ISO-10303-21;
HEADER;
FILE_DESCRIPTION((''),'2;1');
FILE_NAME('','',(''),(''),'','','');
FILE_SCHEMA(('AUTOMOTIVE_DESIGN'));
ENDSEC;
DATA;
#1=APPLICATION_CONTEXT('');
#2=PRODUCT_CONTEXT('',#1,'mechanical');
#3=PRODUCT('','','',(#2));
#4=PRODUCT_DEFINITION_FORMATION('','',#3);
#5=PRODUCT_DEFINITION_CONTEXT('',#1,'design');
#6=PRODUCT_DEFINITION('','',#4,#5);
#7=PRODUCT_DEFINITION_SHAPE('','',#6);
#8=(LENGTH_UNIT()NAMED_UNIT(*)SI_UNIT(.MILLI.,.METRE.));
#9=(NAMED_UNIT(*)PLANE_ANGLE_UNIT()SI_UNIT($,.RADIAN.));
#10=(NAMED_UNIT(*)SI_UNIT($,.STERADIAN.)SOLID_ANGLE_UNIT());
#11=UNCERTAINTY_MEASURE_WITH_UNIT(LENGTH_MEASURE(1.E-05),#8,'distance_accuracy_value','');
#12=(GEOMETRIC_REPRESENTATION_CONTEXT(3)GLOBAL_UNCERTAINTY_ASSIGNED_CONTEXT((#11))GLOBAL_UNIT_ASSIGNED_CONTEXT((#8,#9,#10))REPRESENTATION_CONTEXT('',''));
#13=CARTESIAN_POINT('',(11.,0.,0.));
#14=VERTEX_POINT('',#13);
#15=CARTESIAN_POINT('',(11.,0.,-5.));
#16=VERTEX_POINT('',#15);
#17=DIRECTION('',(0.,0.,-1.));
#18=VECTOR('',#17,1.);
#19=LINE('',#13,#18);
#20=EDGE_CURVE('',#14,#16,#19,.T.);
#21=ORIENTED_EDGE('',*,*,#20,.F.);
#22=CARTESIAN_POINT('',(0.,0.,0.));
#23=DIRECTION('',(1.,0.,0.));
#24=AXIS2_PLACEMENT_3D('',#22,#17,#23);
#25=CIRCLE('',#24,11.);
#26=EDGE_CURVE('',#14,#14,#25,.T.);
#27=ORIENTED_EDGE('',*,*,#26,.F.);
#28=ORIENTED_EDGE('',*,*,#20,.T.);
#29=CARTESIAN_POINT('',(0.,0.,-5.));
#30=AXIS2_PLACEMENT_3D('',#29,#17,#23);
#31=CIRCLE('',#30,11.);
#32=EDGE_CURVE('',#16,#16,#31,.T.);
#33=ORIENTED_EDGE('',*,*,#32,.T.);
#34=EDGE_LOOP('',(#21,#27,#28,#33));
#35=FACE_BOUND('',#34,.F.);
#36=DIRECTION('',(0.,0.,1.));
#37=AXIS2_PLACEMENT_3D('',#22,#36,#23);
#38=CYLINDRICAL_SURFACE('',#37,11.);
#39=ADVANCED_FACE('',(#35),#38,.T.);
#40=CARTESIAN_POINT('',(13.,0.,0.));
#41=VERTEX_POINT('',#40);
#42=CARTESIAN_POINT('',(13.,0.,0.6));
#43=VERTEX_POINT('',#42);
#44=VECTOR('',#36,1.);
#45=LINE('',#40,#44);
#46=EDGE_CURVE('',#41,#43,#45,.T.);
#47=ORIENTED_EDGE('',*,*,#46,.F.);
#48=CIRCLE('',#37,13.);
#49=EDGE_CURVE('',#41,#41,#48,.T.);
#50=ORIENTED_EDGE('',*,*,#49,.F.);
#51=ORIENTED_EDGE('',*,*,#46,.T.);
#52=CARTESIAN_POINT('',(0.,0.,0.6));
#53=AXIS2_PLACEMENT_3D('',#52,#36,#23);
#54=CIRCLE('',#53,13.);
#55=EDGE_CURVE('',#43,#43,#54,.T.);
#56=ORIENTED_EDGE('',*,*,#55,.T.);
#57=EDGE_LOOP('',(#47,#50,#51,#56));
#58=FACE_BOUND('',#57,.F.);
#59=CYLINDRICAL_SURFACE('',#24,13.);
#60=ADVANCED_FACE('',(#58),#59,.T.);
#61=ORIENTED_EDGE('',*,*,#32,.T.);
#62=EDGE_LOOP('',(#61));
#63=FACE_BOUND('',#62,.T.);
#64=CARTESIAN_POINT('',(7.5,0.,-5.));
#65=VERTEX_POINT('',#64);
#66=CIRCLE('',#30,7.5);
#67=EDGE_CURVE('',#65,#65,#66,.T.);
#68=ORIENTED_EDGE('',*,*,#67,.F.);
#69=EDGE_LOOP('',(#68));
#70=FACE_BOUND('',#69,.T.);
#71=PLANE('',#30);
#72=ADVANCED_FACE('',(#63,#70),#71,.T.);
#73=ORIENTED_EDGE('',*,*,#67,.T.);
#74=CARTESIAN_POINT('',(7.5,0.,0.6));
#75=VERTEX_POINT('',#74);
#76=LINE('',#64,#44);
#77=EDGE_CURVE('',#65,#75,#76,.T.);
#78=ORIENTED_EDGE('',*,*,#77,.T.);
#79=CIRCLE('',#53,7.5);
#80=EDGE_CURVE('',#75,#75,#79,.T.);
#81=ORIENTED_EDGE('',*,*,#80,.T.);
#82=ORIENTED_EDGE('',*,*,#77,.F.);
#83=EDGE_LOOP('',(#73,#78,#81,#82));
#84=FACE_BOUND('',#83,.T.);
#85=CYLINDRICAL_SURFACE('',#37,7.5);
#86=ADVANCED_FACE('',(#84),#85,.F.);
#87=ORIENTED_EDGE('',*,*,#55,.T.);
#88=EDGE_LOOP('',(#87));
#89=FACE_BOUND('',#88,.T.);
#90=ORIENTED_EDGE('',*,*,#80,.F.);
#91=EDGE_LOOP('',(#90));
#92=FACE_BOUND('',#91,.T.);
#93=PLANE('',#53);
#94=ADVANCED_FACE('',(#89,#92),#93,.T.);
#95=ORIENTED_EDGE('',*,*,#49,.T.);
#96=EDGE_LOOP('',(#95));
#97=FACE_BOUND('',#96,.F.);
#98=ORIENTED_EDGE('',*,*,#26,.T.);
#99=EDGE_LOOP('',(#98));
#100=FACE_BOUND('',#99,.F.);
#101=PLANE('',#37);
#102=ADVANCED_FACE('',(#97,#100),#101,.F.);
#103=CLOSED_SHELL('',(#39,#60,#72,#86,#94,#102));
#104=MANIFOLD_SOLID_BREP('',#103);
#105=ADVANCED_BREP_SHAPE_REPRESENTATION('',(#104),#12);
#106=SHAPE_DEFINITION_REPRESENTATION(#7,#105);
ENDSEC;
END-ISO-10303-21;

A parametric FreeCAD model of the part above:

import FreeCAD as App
import Part
import Sketcher

V = App.Vector

doc = App.newDocument("Part")
params = doc.addObject("Spreadsheet::Sheet", "Params")
for row, (alias, value) in enumerate([
    ("sketch1_diameter", "26 mm"),
    ("sketch1_diameter2", "15 mm"),
    ("pad1_length", "0.6 mm"),
    ("sketch2_diameter", "22 mm"),
    ("sketch2_diameter2", "15 mm"),
    ("pad2_length", "5 mm"),
], start=1):
    params.set(f"A{row}", alias)
    params.set(f"B{row}", "=" + value)
    params.setAlias(f"B{row}", alias)

body = doc.addObject("PartDesign::Body", "Body")

# Sketch on XY plane
sketch1 = doc.addObject("Sketcher::SketchObject", "Sketch")
body.addObject(sketch1)
sketch1.AttachmentSupport = (doc.XY_Plane, [""])
sketch1.MapMode = "FlatFace"
sketch1.addGeometry([
    Part.Circle(V(0, 0, 0), V(0, 0, 1), 13),
    Part.Circle(V(0, 0, 0), V(0, 0, 1), 8),
], False)
sketch1.addConstraint([
    Sketcher.Constraint("Coincident", 0, 3, -1, 1),
    Sketcher.Constraint("Coincident", 1, 3, -1, 1),
    Sketcher.Constraint("Diameter", 0, 26.0),
    Sketcher.Constraint("Diameter", 1, 15.0),
])
sketch1.setExpression("Constraints[2]", "Params.sketch1_diameter")
sketch1.setExpression("Constraints[3]", "Params.sketch1_diameter2")
pad1 = doc.addObject("PartDesign::Pad", "Pad")
body.addObject(pad1)
pad1.Profile = sketch1
pad1.setExpression("Length", "Params.pad1_length")

# Sketch on XY plane
sketch2 = doc.addObject("Sketcher::SketchObject", "Sketch001")
body.addObject(sketch2)
sketch2.AttachmentSupport = (doc.XY_Plane, [""])
sketch2.MapMode = "FlatFace"
sketch2.addGeometry([
    Part.Circle(V(0, 0, 0), V(0, 0, 1), 11),
    Part.Circle(V(0, 0, 0), V(0, 0, 1), 8),
], False)
sketch2.addConstraint([
    Sketcher.Constraint("Coincident", 0, 3, -1, 1),
    Sketcher.Constraint("Coincident", 1, 3, -1, 1),
    Sketcher.Constraint("Diameter", 0, 22.0),
    Sketcher.Constraint("Diameter", 1, 15.0),
])
sketch2.setExpression("Constraints[2]", "Params.sketch2_diameter")
sketch2.setExpression("Constraints[3]", "Params.sketch2_diameter2")
pad2 = doc.addObject("PartDesign::Pad", "Pad001")
body.addObject(pad2)
pad2.Profile = sketch2
pad2.setExpression("Length", "Params.pad2_length")
pad2.Reversed = True

doc.recompute()
